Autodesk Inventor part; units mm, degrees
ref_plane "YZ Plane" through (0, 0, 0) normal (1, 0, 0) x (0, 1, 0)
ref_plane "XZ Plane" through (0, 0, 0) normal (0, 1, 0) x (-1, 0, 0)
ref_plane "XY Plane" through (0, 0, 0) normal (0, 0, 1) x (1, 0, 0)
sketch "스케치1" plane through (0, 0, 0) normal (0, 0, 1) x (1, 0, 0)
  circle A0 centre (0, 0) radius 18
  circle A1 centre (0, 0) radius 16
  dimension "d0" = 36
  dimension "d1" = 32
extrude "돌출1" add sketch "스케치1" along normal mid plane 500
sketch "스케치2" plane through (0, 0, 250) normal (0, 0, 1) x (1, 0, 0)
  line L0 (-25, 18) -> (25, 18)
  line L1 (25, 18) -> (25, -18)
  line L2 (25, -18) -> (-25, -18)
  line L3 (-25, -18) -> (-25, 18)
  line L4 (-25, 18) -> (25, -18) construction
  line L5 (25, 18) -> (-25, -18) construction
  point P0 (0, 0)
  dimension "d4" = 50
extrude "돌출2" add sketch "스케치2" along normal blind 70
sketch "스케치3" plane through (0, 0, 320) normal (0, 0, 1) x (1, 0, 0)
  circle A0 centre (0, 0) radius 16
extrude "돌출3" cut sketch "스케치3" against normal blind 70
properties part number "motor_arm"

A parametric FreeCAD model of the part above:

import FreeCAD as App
import Part
import Sketcher


def add_polygon(sketch, points):
    """Adds a closed chain of lines whose ends are joined by coincident constraints."""
    first, n = sketch.GeometryCount, len(points)
    for a, b in zip(points, points[1:] + points[:1]):
        sketch.addGeometry(Part.LineSegment(App.Vector(*a, 0), App.Vector(*b, 0)), False)
    for i in range(n):
        sketch.addConstraint(Sketcher.Constraint("Coincident", first + i, 2, first + (i + 1) % n, 1))

doc = App.newDocument("Part")
body = doc.addObject("PartDesign::Body", "Body")

# Sketch on XY plane
sketch1 = doc.addObject("Sketcher::SketchObject", "Sketch")
body.addObject(sketch1)
sketch1.AttachmentSupport = (doc.XY_Plane, [""])
sketch1.MapMode = "FlatFace"
sketch1.addGeometry([
    Part.Circle(App.Vector(0, 0, 0), App.Vector(0, 0, 1), 18),
    Part.Circle(App.Vector(0, 0, 0), App.Vector(0, 0, 1), 16),
], False)
sketch1.addConstraint([
    Sketcher.Constraint("Coincident", 0, 3, -1, 1),
    Sketcher.Constraint("Coincident", 1, 3, -1, 1),
    Sketcher.Constraint("Diameter", 0, 36.0),
    Sketcher.Constraint("Diameter", 1, 32.0),
])
pad1 = doc.addObject("PartDesign::Pad", "Pad")
body.addObject(pad1)
pad1.Profile = sketch1
pad1.Length = 500
pad1.Midplane = True

# Sketch on XY plane
sketch2 = doc.addObject("Sketcher::SketchObject", "Sketch001")
body.addObject(sketch2)
sketch2.AttachmentSupport = (doc.XY_Plane, [""])
sketch2.MapMode = "FlatFace"
sketch2.AttachmentOffset = App.Placement(App.Vector(0, 0, 250), App.Rotation())
add_polygon(sketch2, [(25, 18), (-25, 18), (-25, -18), (25, -18)])  # lines 0-3
sketch2.addConstraint([
    Sketcher.Constraint("Horizontal", 0),
    Sketcher.Constraint("Vertical", 1),
    Sketcher.Constraint("Horizontal", 2),
    Sketcher.Constraint("Vertical", 3),
    Sketcher.Constraint("Symmetric", 0, 2, 2, 2, -1, 1),
    Sketcher.Constraint("DistanceX", 0, 2, 0, 1, 50.0),
    Sketcher.Constraint("DistanceY", 1, 2, 1, 1, 36.0),
])
pad2 = doc.addObject("PartDesign::Pad", "Pad001")
body.addObject(pad2)
pad2.Profile = sketch2
pad2.Length = 70

# Sketch on XY plane
sketch3 = doc.addObject("Sketcher::SketchObject", "Sketch002")
body.addObject(sketch3)
sketch3.AttachmentSupport = (doc.XY_Plane, [""])
sketch3.MapMode = "FlatFace"
sketch3.AttachmentOffset = App.Placement(App.Vector(0, 0, 320), App.Rotation())
sketch3.addGeometry(Part.Circle(App.Vector(0, 0, 0), App.Vector(0, 0, 1), 16), False)
sketch3.addConstraint([
    Sketcher.Constraint("Coincident", 0, 3, -1, 1),
    Sketcher.Constraint("Diameter", 0, 32.0),
])
pocket1 = doc.addObject("PartDesign::Pocket", "Pocket")
body.addObject(pocket1)
pocket1.Profile = sketch3
pocket1.Length = 70

doc.recompute()
